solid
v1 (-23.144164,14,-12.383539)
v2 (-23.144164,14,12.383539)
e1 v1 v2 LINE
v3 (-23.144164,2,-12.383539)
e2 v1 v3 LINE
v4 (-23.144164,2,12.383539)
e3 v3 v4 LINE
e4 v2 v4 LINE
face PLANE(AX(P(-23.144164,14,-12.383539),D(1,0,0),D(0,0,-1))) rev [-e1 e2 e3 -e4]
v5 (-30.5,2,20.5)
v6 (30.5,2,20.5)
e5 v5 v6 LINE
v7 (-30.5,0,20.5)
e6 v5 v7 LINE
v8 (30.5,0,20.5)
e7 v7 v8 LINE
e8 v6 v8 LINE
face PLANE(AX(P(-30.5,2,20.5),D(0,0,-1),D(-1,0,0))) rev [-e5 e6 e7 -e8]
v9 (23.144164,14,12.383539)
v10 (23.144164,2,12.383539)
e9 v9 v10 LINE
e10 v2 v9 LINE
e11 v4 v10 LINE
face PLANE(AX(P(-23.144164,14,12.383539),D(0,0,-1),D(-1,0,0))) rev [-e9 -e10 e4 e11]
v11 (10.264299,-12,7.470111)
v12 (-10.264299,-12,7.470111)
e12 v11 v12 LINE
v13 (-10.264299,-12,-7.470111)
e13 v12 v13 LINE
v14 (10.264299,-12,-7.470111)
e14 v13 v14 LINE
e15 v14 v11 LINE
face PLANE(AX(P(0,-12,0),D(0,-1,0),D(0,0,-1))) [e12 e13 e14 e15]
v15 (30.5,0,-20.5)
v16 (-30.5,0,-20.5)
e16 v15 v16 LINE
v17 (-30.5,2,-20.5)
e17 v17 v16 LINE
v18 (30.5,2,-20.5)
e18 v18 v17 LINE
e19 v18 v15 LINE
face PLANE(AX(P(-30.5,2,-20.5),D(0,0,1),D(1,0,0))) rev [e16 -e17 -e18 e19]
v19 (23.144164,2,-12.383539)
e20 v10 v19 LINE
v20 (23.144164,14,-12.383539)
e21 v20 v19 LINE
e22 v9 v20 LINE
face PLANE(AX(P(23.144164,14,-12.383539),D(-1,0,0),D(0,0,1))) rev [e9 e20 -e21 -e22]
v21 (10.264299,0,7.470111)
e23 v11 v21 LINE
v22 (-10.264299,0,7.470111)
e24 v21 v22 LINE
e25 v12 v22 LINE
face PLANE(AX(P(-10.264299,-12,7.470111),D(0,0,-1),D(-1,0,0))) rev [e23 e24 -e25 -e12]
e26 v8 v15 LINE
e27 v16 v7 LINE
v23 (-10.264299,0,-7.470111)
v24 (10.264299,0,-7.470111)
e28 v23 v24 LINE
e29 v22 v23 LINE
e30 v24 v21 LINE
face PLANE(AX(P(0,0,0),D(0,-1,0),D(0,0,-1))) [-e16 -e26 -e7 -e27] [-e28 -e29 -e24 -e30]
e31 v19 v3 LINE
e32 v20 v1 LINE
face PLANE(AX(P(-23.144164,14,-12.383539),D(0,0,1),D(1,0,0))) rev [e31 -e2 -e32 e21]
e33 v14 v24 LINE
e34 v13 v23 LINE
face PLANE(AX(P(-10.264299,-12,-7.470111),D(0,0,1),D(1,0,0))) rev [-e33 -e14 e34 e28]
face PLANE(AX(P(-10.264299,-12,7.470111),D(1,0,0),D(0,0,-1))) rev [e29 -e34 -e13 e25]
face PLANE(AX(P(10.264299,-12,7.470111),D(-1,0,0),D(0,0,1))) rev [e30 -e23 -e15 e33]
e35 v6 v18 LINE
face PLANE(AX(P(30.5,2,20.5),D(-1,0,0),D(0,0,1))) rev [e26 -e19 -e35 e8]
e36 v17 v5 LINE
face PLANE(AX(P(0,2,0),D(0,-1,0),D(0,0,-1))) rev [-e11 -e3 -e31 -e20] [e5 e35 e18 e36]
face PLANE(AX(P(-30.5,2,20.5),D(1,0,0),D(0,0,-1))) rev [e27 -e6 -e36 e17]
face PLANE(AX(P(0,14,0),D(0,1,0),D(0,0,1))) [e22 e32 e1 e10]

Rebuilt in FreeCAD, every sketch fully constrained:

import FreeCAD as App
import Part
import Sketcher
from FreeCAD import Vector
Q = App.Units.Quantity

doc = App.newDocument("Part")
body = doc.addObject("PartDesign::Body", "Body")

# Sketch on XZ plane
sketch1 = doc.addObject("Sketcher::SketchObject", "Sketch")
body.addObject(sketch1)
sketch1.AttachmentSupport = (doc.XZ_Plane, [""])
sketch1.MapMode = "FlatFace"
sketch1.addGeometry([
    Part.LineSegment(Vector(-30, -20, 0), Vector(-30, 20, 0)),
    Part.LineSegment(Vector(-30, 20, 0), Vector(30, 20, 0)),
    Part.LineSegment(Vector(30, 20, 0), Vector(30, -20, 0)),
    Part.LineSegment(Vector(30, -20, 0), Vector(-30, -20, 0)),
], False)
sketch1.addConstraint([
    Sketcher.Constraint("Coincident", 0, 2, 1, 1),
    Sketcher.Constraint("Coincident", 1, 2, 2, 1),
    Sketcher.Constraint("Coincident", 2, 2, 3, 1),
    Sketcher.Constraint("Coincident", 3, 2, 0, 1),
    Sketcher.Constraint("Vertical", 0),
    Sketcher.Constraint("Horizontal", 1),
    Sketcher.Constraint("Vertical", 2),
    Sketcher.Constraint("Horizontal", 3),
    Sketcher.Constraint("Symmetric", 0, 2, 2, 2, -1, 1),
    Sketcher.Constraint("DistanceX", 1, 1, 1, 2, Q("61 mm")),
    Sketcher.Constraint("DistanceY", 0, 1, 0, 2, Q("41 mm")),
])
pad1 = doc.addObject("PartDesign::Pad", "Pad")
body.addObject(pad1)
pad1.Profile = sketch1
pad1.Length = 2
pad1.Reversed = True

# Sketch on XZ plane
sketch2 = doc.addObject("Sketcher::SketchObject", "Sketch001")
body.addObject(sketch2)
sketch2.AttachmentSupport = (doc.XZ_Plane, [""])
sketch2.MapMode = "FlatFace"
sketch2.AttachmentOffset = App.Placement(Vector(0, 0, -2), App.Rotation())
sketch2.addGeometry([
    Part.LineSegment(Vector(-23, -12, 0), Vector(-23, 12, 0)),
    Part.LineSegment(Vector(-23, 12, 0), Vector(23, 12, 0)),
    Part.LineSegment(Vector(23, 12, 0), Vector(23, -12, 0)),
    Part.LineSegment(Vector(23, -12, 0), Vector(-23, -12, 0)),
], False)
sketch2.addConstraint([
    Sketcher.Constraint("Coincident", 0, 2, 1, 1),
    Sketcher.Constraint("Coincident", 1, 2, 2, 1),
    Sketcher.Constraint("Coincident", 2, 2, 3, 1),
    Sketcher.Constraint("Coincident", 3, 2, 0, 1),
    Sketcher.Constraint("Vertical", 0),
    Sketcher.Constraint("Horizontal", 1),
    Sketcher.Constraint("Vertical", 2),
    Sketcher.Constraint("Horizontal", 3),
    Sketcher.Constraint("Symmetric", 0, 2, 2, 2, -1, 1),
    Sketcher.Constraint("DistanceX", 1, 1, 1, 2, Q("46.288328 mm")),
    Sketcher.Constraint("DistanceY", 0, 1, 0, 2, Q("24.767078 mm")),
])
pad2 = doc.addObject("PartDesign::Pad", "Pad001")
body.addObject(pad2)
pad2.Profile = sketch2
pad2.Length = 12
pad2.Reversed = True

# Sketch on XZ plane
sketch3 = doc.addObject("Sketcher::SketchObject", "Sketch002")
body.addObject(sketch3)
sketch3.AttachmentSupport = (doc.XZ_Plane, [""])
sketch3.MapMode = "FlatFace"
sketch3.addGeometry([
    Part.LineSegment(Vector(-10, 7, 0), Vector(-10, -7, 0)),
    Part.LineSegment(Vector(-10, -7, 0), Vector(10, -7, 0)),
    Part.LineSegment(Vector(10, -7, 0), Vector(10, 7, 0)),
    Part.LineSegment(Vector(10, 7, 0), Vector(-10, 7, 0)),
], False)
sketch3.addConstraint([
    Sketcher.Constraint("Coincident", 0, 2, 1, 1),
    Sketcher.Constraint("Coincident", 1, 2, 2, 1),
    Sketcher.Constraint("Coincident", 2, 2, 3, 1),
    Sketcher.Constraint("Coincident", 3, 2, 0, 1),
    Sketcher.Constraint("Vertical", 0),
    Sketcher.Constraint("Horizontal", 1),
    Sketcher.Constraint("Vertical", 2),
    Sketcher.Constraint("Horizontal", 3),
    Sketcher.Constraint("Symmetric", 0, 2, 2, 2, -1, 1),
    Sketcher.Constraint("DistanceX", 0, 2, -1, 1, Q("10.264299 mm")),
    Sketcher.Constraint("DistanceY", 0, 2, 0, 1, Q("14.940222 mm")),
])
pad3 = doc.addObject("PartDesign::Pad", "Pad002")
body.addObject(pad3)
pad3.Profile = sketch3
pad3.Length = 12

doc.recompute()
